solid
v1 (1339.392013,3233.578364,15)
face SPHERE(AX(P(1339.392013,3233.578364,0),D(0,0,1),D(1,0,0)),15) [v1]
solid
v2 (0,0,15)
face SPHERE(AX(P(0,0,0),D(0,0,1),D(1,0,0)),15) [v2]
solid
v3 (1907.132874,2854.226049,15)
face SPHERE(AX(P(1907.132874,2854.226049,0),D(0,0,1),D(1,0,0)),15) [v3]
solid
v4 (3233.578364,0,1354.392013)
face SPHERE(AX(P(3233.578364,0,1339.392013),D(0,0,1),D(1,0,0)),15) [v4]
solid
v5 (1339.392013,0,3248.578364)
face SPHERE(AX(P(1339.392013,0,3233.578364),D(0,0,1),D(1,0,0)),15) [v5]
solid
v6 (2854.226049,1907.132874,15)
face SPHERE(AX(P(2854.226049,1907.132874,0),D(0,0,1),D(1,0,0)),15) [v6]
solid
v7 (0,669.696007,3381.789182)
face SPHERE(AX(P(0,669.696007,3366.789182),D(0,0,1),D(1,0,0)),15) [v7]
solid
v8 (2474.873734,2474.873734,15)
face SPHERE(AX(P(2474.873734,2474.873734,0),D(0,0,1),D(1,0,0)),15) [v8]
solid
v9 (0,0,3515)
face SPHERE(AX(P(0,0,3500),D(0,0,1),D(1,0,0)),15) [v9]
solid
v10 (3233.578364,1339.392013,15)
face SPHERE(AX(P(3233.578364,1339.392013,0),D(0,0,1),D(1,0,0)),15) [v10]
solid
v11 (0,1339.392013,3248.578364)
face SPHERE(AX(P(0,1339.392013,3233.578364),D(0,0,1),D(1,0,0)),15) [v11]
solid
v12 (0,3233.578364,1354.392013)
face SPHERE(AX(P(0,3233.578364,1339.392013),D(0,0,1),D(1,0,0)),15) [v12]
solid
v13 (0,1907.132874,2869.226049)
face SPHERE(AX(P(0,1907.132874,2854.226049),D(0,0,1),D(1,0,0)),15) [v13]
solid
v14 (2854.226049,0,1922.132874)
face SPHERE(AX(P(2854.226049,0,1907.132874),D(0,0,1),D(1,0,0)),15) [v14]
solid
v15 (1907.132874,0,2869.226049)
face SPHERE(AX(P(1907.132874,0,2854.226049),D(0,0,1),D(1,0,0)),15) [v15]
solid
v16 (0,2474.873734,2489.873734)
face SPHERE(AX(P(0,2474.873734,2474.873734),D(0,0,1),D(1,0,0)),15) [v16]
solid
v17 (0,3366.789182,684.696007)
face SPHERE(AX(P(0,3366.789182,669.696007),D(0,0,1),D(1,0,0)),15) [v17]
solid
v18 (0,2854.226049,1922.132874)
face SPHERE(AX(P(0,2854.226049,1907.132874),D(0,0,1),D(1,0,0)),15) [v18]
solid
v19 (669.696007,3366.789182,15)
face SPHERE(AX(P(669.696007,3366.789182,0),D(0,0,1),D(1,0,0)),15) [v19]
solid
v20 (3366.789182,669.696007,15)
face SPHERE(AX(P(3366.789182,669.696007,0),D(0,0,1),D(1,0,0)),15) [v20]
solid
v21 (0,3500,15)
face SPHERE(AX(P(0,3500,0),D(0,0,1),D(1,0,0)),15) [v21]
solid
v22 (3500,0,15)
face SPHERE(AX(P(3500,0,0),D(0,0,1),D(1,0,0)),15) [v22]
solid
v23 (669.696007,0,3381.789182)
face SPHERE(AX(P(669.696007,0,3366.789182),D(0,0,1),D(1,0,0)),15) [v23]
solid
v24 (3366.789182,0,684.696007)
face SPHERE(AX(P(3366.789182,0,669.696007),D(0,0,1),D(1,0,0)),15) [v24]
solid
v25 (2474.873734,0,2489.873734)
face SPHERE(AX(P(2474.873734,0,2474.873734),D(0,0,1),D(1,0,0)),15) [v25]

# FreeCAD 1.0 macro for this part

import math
import FreeCAD as App
import Part
import Sketcher
from FreeCAD import Vector
Q = App.Units.Quantity

doc = App.newDocument("Part")
params = doc.addObject("Spreadsheet::Sheet", "Params")
for row, (alias, value) in enumerate([
    ("sketch1_radius", "15 mm"),
    ("revolution_angle", "360 deg"),
    ("sketch2_radius", "15 mm"),
    ("revolution2_angle", "360 deg"),
    ("sketch3_radius", "15 mm"),
    ("revolution3_angle", "360 deg"),
    ("sketch4_radius", "15 mm"),
    ("revolution4_angle", "360 deg"),
    ("sketch5_radius", "15 mm"),
    ("revolution5_angle", "360 deg"),
    ("sketch6_radius", "15 mm"),
    ("revolution6_angle", "360 deg"),
    ("sketch7_radius", "15 mm"),
    ("revolution7_angle", "360 deg"),
    ("sketch8_radius", "15 mm"),
    ("revolution8_angle", "360 deg"),
    ("sketch9_radius", "15 mm"),
    ("revolution9_angle", "360 deg"),
    ("sketch10_radius", "15 mm"),
    ("revolution10_angle", "360 deg"),
    ("sketch11_radius", "15 mm"),
    ("revolution11_angle", "360 deg"),
    ("sketch12_radius", "15 mm"),
    ("revolution12_angle", "360 deg"),
    ("sketch13_radius", "15 mm"),
    ("revolution13_angle", "360 deg"),
    ("sketch14_radius", "15 mm"),
    ("revolution14_angle", "360 deg"),
    ("sketch15_radius", "15 mm"),
    ("revolution15_angle", "360 deg"),
    ("sketch16_radius", "15 mm"),
    ("revolution16_angle", "360 deg"),
    ("sketch17_radius", "15 mm"),
    ("revolution17_angle", "360 deg"),
    ("sketch18_radius", "15 mm"),
    ("revolution18_angle", "360 deg"),
    ("sketch19_radius", "15 mm"),
    ("revolution19_angle", "360 deg"),
    ("sketch20_radius", "15 mm"),
    ("revolution20_angle", "360 deg"),
    ("sketch21_radius", "15 mm"),
    ("revolution21_angle", "360 deg"),
    ("sketch22_radius", "15 mm"),
    ("revolution22_angle", "360 deg"),
    ("sketch23_radius", "15 mm"),
    ("revolution23_angle", "360 deg"),
    ("sketch24_radius", "15 mm"),
    ("revolution24_angle", "360 deg"),
    ("sketch25_radius", "15 mm"),
    ("revolution25_angle", "360 deg"),
], start=1):
    params.set(f"A{row}", alias)
    params.set(f"B{row}", "=" + value)
    params.setAlias(f"B{row}", alias)

body = doc.addObject("PartDesign::Body", "Body")

# Sketch on XZ plane
sketch1 = doc.addObject("Sketcher::SketchObject", "Sketch")
body.addObject(sketch1)
sketch1.AttachmentSupport = (doc.XZ_Plane, [""])
sketch1.MapMode = "FlatFace"
sketch1.addGeometry([
    Part.ArcOfCircle(Part.Circle(Vector(3500, 0, 0), Vector(0, 0, 1), 15), math.radians(-90), math.radians(90)),
    Part.LineSegment(Vector(3500, 15, 0), Vector(3500, -15, 0)),
], False)
sketch1.addGeometry(Part.LineSegment(Vector(3500, -15, 0), Vector(3500, 15, 0)), True)  # axis
sketch1.addConstraint([
    Sketcher.Constraint("Coincident", 0, 1, 1, 2),
    Sketcher.Constraint("Coincident", 1, 1, 0, 2),
    Sketcher.Constraint("Vertical", 1),
    Sketcher.Constraint("Vertical", 2),
    Sketcher.Constraint("Coincident", 2, 1, 0, 1),
    Sketcher.Constraint("PointOnObject", 0, 3, -1),
    Sketcher.Constraint("Equal", 1, 2),
    Sketcher.Constraint("Radius", 0, Q("15 mm")),
    Sketcher.Constraint("DistanceX", -1, 1, 0, 3, Q("3500 mm")),
    Sketcher.Constraint("DistanceX", -1, 1, 0, 1, Q("3500 mm")),
])
sketch1.setExpression("Constraints[7]", "Params.sketch1_radius")
revolution = doc.addObject("PartDesign::Revolution", "Revolution")
body.addObject(revolution)
revolution.Profile = sketch1
revolution.ReferenceAxis = (sketch1, ["Axis0"])
revolution.setExpression("Angle", "Params.revolution_angle")
body2 = doc.addObject("PartDesign::Body", "Body001")

# Sketch on XZ plane
sketch2 = doc.addObject("Sketcher::SketchObject", "Sketch001")
body2.addObject(sketch2)
sketch2.AttachmentSupport = (doc.getObject("XZ_Plane001"), [""])
sketch2.MapMode = "FlatFace"
sketch2.addGeometry([
    Part.ArcOfCircle(Part.Circle(Vector(0, 0, 0), Vector(0, 0, 1), 15), math.radians(-90), math.radians(90)),
    Part.LineSegment(Vector(0, 15, 0), Vector(0, -15, 0)),
], False)
sketch2.addConstraint([
    Sketcher.Constraint("Coincident", 0, 1, 1, 2),
    Sketcher.Constraint("Coincident", 1, 1, 0, 2),
    Sketcher.Constraint("Vertical", 1),
    Sketcher.Constraint("Coincident", 0, 3, -1, 1),
    Sketcher.Constraint("PointOnObject", 0, 1, -2),
    Sketcher.Constraint("Radius", 0, Q("15 mm")),
])
sketch2.setExpression("Constraints[5]", "Params.sketch2_radius")
revolution2 = doc.addObject("PartDesign::Revolution", "Revolution001")
body2.addObject(revolution2)
revolution2.Profile = sketch2
revolution2.ReferenceAxis = (sketch2, ["V_Axis"])
revolution2.setExpression("Angle", "Params.revolution2_angle")
body3 = doc.addObject("PartDesign::Body", "Body002")

# Sketch on XZ plane
sketch3 = doc.addObject("Sketcher::SketchObject", "Sketch002")
body3.addObject(sketch3)
sketch3.AttachmentSupport = (doc.getObject("XZ_Plane002"), [""])
sketch3.MapMode = "FlatFace"
sketch3.addGeometry([
    Part.ArcOfCircle(Part.Circle(Vector(0, 3500, 0), Vector(0, 0, 1), 15), math.radians(-90), math.radians(90)),
    Part.LineSegment(Vector(0, 3515, 0), Vector(0, 3485, 0)),
], False)
sketch3.addConstraint([
    Sketcher.Constraint("Coincident", 0, 1, 1, 2),
    Sketcher.Constraint("Coincident", 1, 1, 0, 2),
    Sketcher.Constraint("Vertical", 1),
    Sketcher.Constraint("PointOnObject", 0, 3, -2),
    Sketcher.Constraint("PointOnObject", 0, 1, -2),
    Sketcher.Constraint("Radius", 0, Q("15 mm")),
    Sketcher.Constraint("DistanceY", -1, 1, 0, 3, Q("3500 mm")),
])
sketch3.setExpression("Constraints[5]", "Params.sketch3_radius")
revolution3 = doc.addObject("PartDesign::Revolution", "Revolution002")
body3.addObject(revolution3)
revolution3.Profile = sketch3
revolution3.ReferenceAxis = (sketch3, ["V_Axis"])
revolution3.setExpression("Angle", "Params.revolution3_angle")
body4 = doc.addObject("PartDesign::Body", "Body003")

# Sketch on XZ plane
sketch4 = doc.addObject("Sketcher::SketchObject", "Sketch003")
body4.addObject(sketch4)
sketch4.AttachmentSupport = (doc.getObject("XZ_Plane003"), [""])
sketch4.MapMode = "FlatFace"
sketch4.addGeometry([
    Part.ArcOfCircle(Part.Circle(Vector(1339, 3234, 0), Vector(0, 0, 1), 15), math.radians(-90), math.radians(90)),
    Part.LineSegment(Vector(1339, 3249, 0), Vector(1339, 3219, 0)),
], False)
sketch4.addGeometry(Part.LineSegment(Vector(1339, 3219, 0), Vector(1339, 3249, 0)), True)  # axis
sketch4.addConstraint([
    Sketcher.Constraint("Coincident", 0, 1, 1, 2),
    Sketcher.Constraint("Coincident", 1, 1, 0, 2),
    Sketcher.Constraint("Vertical", 1),
    Sketcher.Constraint("Vertical", 2),
    Sketcher.Constraint("Coincident", 2, 1, 0, 1),
    Sketcher.Constraint("Equal", 1, 2),
    Sketcher.Constraint("Radius", 0, Q("15 mm")),
    Sketcher.Constraint("DistanceX", -1, 1, 0, 3, Q("1339.392013 mm")),
    Sketcher.Constraint("DistanceY", -1, 1, 0, 3, Q("3233.578364 mm")),
    Sketcher.Constraint("DistanceX", -1, 1, 0, 1, Q("1339.392013 mm")),
])
sketch4.setExpression("Constraints[6]", "Params.sketch4_radius")
revolution4 = doc.addObject("PartDesign::Revolution", "Revolution003")
body4.addObject(revolution4)
revolution4.Profile = sketch4
revolution4.ReferenceAxis = (sketch4, ["Axis0"])
revolution4.setExpression("Angle", "Params.revolution4_angle")
body5 = doc.addObject("PartDesign::Body", "Body004")

# Sketch on XZ plane
sketch5 = doc.addObject("Sketcher::SketchObject", "Sketch004")
body5.addObject(sketch5)
sketch5.AttachmentSupport = (doc.getObject("XZ_Plane004"), [""])
sketch5.MapMode = "FlatFace"
sketch5.addGeometry([
    Part.ArcOfCircle(Part.Circle(Vector(2475, 2475, 0), Vector(0, 0, 1), 15), math.radians(-90), math.radians(90)),
    Part.LineSegment(Vector(2475, 2490, 0), Vector(2475, 2460, 0)),
], False)
sketch5.addGeometry(Part.LineSegment(Vector(2475, 2460, 0), Vector(2475, 2490, 0)), True)  # axis
sketch5.addConstraint([
    Sketcher.Constraint("Coincident", 0, 1, 1, 2),
    Sketcher.Constraint("Coincident", 1, 1, 0, 2),
    Sketcher.Constraint("Vertical", 1),
    Sketcher.Constraint("Vertical", 2),
    Sketcher.Constraint("Coincident", 2, 1, 0, 1),
    Sketcher.Constraint("Equal", 1, 2),
    Sketcher.Constraint("Radius", 0, Q("15 mm")),
    Sketcher.Constraint("DistanceX", -1, 1, 0, 3, Q("2474.873734 mm")),
    Sketcher.Constraint("DistanceY", -1, 1, 0, 3, Q("2474.873734 mm")),
    Sketcher.Constraint("DistanceX", -1, 1, 0, 1, Q("2474.873734 mm")),
])
sketch5.setExpression("Constraints[6]", "Params.sketch5_radius")
revolution5 = doc.addObject("PartDesign::Revolution", "Revolution004")
body5.addObject(revolution5)
revolution5.Profile = sketch5
revolution5.ReferenceAxis = (sketch5, ["Axis0"])
revolution5.setExpression("Angle", "Params.revolution5_angle")
body6 = doc.addObject("PartDesign::Body", "Body005")

# Sketch on XZ plane
sketch6 = doc.addObject("Sketcher::SketchObject", "Sketch005")
body6.addObject(sketch6)
sketch6.AttachmentSupport = (doc.getObject("XZ_Plane005"), [""])
sketch6.MapMode = "FlatFace"
sketch6.addGeometry([
    Part.ArcOfCircle(Part.Circle(Vector(3234, 1339, 0), Vector(0, 0, 1), 15), math.radians(-90), math.radians(90)),
    Part.LineSegment(Vector(3234, 1354, 0), Vector(3234, 1324, 0)),
], False)
sketch6.addGeometry(Part.LineSegment(Vector(3234, 1324, 0), Vector(3234, 1354, 0)), True)  # axis
sketch6.addConstraint([
    Sketcher.Constraint("Coincident", 0, 1, 1, 2),
    Sketcher.Constraint("Coincident", 1, 1, 0, 2),
    Sketcher.Constraint("Vertical", 1),
    Sketcher.Constraint("Vertical", 2),
    Sketcher.Constraint("Coincident", 2, 1, 0, 1),
    Sketcher.Constraint("Equal", 1, 2),
    Sketcher.Constraint("Radius", 0, Q("15 mm")),
    Sketcher.Constraint("DistanceX", -1, 1, 0, 3, Q("3233.578364 mm")),
    Sketcher.Constraint("DistanceY", -1, 1, 0, 3, Q("1339.392013 mm")),
    Sketcher.Constraint("DistanceX", -1, 1, 0, 1, Q("3233.578364 mm")),
])
sketch6.setExpression("Constraints[6]", "Params.sketch6_radius")
revolution6 = doc.addObject("PartDesign::Revolution", "Revolution005")
body6.addObject(revolution6)
revolution6.Profile = sketch6
revolution6.ReferenceAxis = (sketch6, ["Axis0"])
revolution6.setExpression("Angle", "Params.revolution6_angle")
body7 = doc.addObject("PartDesign::Body", "Body006")

# Sketch on XZ plane
sketch7 = doc.addObject("Sketcher::SketchObject", "Sketch006")
body7.addObject(sketch7)
sketch7.AttachmentSupport = (doc.getObject("XZ_Plane006"), [""])
sketch7.MapMode = "FlatFace"
sketch7.AttachmentOffset = App.Placement(Vector(0, 0, -3500), App.Rotation())
sketch7.addGeometry([
    Part.ArcOfCircle(Part.Circle(Vector(0, 0, 0), Vector(0, 0, 1), 15), math.radians(-90), math.radians(90)),
    Part.LineSegment(Vector(0, 15, 0), Vector(0, -15, 0)),
], False)
sketch7.addConstraint([
    Sketcher.Constraint("Coincident", 0, 1, 1, 2),
    Sketcher.Constraint("Coincident", 1, 1, 0, 2),
    Sketcher.Constraint("Vertical", 1),
    Sketcher.Constraint("Coincident", 0, 3, -1, 1),
    Sketcher.Constraint("PointOnObject", 0, 1, -2),
    Sketcher.Constraint("Radius", 0, Q("15 mm")),
])
sketch7.setExpression("Constraints[5]", "Params.sketch7_radius")
revolution7 = doc.addObject("PartDesign::Revolution", "Revolution006")
body7.addObject(revolution7)
revolution7.Profile = sketch7
revolution7.ReferenceAxis = (sketch7, ["V_Axis"])
revolution7.setExpression("Angle", "Params.revolution7_angle")
body8 = doc.addObject("PartDesign::Body", "Body007")

# Sketch on XZ plane
sketch8 = doc.addObject("Sketcher::SketchObject", "Sketch007")
body8.addObject(sketch8)
sketch8.AttachmentSupport = (doc.getObject("XZ_Plane007"), [""])
sketch8.MapMode = "FlatFace"
sketch8.AttachmentOffset = App.Placement(Vector(0, 0, -3233.578364), App.Rotation())
sketch8.addGeometry([
    Part.ArcOfCircle(Part.Circle(Vector(0, 1339, 0), Vector(0, 0, 1), 15), math.radians(-90), math.radians(90)),
    Part.LineSegment(Vector(0, 1354, 0), Vector(0, 1324, 0)),
], False)
sketch8.addConstraint([
    Sketcher.Constraint("Coincident", 0, 1, 1, 2),
    Sketcher.Constraint("Coincident", 1, 1, 0, 2),
    Sketcher.Constraint("Vertical", 1),
    Sketcher.Constraint("PointOnObject", 0, 3, -2),
    Sketcher.Constraint("PointOnObject", 0, 1, -2),
    Sketcher.Constraint("Radius", 0, Q("15 mm")),
    Sketcher.Constraint("DistanceY", -1, 1, 0, 3, Q("1339.392013 mm")),
])
sketch8.setExpression("Constraints[5]", "Params.sketch8_radius")
revolution8 = doc.addObject("PartDesign::Revolution", "Revolution007")
body8.addObject(revolution8)
revolution8.Profile = sketch8
revolution8.ReferenceAxis = (sketch8, ["V_Axis"])
revolution8.setExpression("Angle", "Params.revolution8_angle")
body9 = doc.addObject("PartDesign::Body", "Body008")

# Sketch on XZ plane
sketch9 = doc.addObject("Sketcher::SketchObject", "Sketch008")
body9.addObject(sketch9)
sketch9.AttachmentSupport = (doc.getObject("XZ_Plane008"), [""])
sketch9.MapMode = "FlatFace"
sketch9.AttachmentOffset = App.Placement(Vector(0, 0, -2474.873734), App.Rotation())
sketch9.addGeometry([
    Part.ArcOfCircle(Part.Circle(Vector(0, 2475, 0), Vector(0, 0, 1), 15), math.radians(-90), math.radians(90)),
    Part.LineSegment(Vector(0, 2490, 0), Vector(0, 2460, 0)),
], False)
sketch9.addConstraint([
    Sketcher.Constraint("Coincident", 0, 1, 1, 2),
    Sketcher.Constraint("Coincident", 1, 1, 0, 2),
    Sketcher.Constraint("Vertical", 1),
    Sketcher.Constraint("PointOnObject", 0, 3, -2),
    Sketcher.Constraint("PointOnObject", 0, 1, -2),
    Sketcher.Constraint("Radius", 0, Q("15 mm")),
    Sketcher.Constraint("DistanceY", -1, 1, 0, 3, Q("2474.873734 mm")),
])
sketch9.setExpression("Constraints[5]", "Params.sketch9_radius")
revolution9 = doc.addObject("PartDesign::Revolution", "Revolution008")
body9.addObject(revolution9)
revolution9.Profile = sketch9
revolution9.ReferenceAxis = (sketch9, ["V_Axis"])
revolution9.setExpression("Angle", "Params.revolution9_angle")
body10 = doc.addObject("PartDesign::Body", "Body009")

# Sketch on XZ plane
sketch10 = doc.addObject("Sketcher::SketchObject", "Sketch009")
body10.addObject(sketch10)
sketch10.AttachmentSupport = (doc.getObject("XZ_Plane009"), [""])
sketch10.MapMode = "FlatFace"
sketch10.AttachmentOffset = App.Placement(Vector(0, 0, -1339.392013), App.Rotation())
sketch10.addGeometry([
    Part.ArcOfCircle(Part.Circle(Vector(0, 3234, 0), Vector(0, 0, 1), 15), math.radians(-90), math.radians(90)),
    Part.LineSegment(Vector(0, 3249, 0), Vector(0, 3219, 0)),
], False)
sketch10.addConstraint([
    Sketcher.Constraint("Coincident", 0, 1, 1, 2),
    Sketcher.Constraint("Coincident", 1, 1, 0, 2),
    Sketcher.Constraint("Vertical", 1),
    Sketcher.Constraint("PointOnObject", 0, 3, -2),
    Sketcher.Constraint("PointOnObject", 0, 1, -2),
    Sketcher.Constraint("Radius", 0, Q("15 mm")),
    Sketcher.Constraint("DistanceY", -1, 1, 0, 3, Q("3233.578364 mm")),
])
sketch10.setExpression("Constraints[5]", "Params.sketch10_radius")
revolution10 = doc.addObject("PartDesign::Revolution", "Revolution009")
body10.addObject(revolution10)
revolution10.Profile = sketch10
revolution10.ReferenceAxis = (sketch10, ["V_Axis"])
revolution10.setExpression("Angle", "Params.revolution10_angle")
body11 = doc.addObject("PartDesign::Body", "Body010")

# Sketch on XZ plane
sketch11 = doc.addObject("Sketcher::SketchObject", "Sketch010")
body11.addObject(sketch11)
sketch11.AttachmentSupport = (doc.getObject("XZ_Plane010"), [""])
sketch11.MapMode = "FlatFace"
sketch11.AttachmentOffset = App.Placement(Vector(0, 0, -3233.578364), App.Rotation())
sketch11.addGeometry([
    Part.ArcOfCircle(Part.Circle(Vector(1339, 0, 0), Vector(0, 0, 1), 15), math.radians(-90), math.radians(90)),
    Part.LineSegment(Vector(1339, 15, 0), Vector(1339, -15, 0)),
], False)
sketch11.addGeometry(Part.LineSegment(Vector(1339, -15, 0), Vector(1339, 15, 0)), True)  # axis
sketch11.addConstraint([
    Sketcher.Constraint("Coincident", 0, 1, 1, 2),
    Sketcher.Constraint("Coincident", 1, 1, 0, 2),
    Sketcher.Constraint("Vertical", 1),
    Sketcher.Constraint("Vertical", 2),
    Sketcher.Constraint("Coincident", 2, 1, 0, 1),
    Sketcher.Constraint("PointOnObject", 0, 3, -1),
    Sketcher.Constraint("Equal", 1, 2),
    Sketcher.Constraint("Radius", 0, Q("15 mm")),
    Sketcher.Constraint("DistanceX", -1, 1, 0, 3, Q("1339.392013 mm")),
    Sketcher.Constraint("DistanceX", -1, 1, 0, 1, Q("1339.392013 mm")),
])
sketch11.setExpression("Constraints[7]", "Params.sketch11_radius")
revolution11 = doc.addObject("PartDesign::Revolution", "Revolution010")
body11.addObject(revolution11)
revolution11.Profile = sketch11
revolution11.ReferenceAxis = (sketch11, ["Axis0"])
revolution11.setExpression("Angle", "Params.revolution11_angle")
body12 = doc.addObject("PartDesign::Body", "Body011")

# Sketch on XZ plane
sketch12 = doc.addObject("Sketcher::SketchObject", "Sketch011")
body12.addObject(sketch12)
sketch12.AttachmentSupport = (doc.getObject("XZ_Plane011"), [""])
sketch12.MapMode = "FlatFace"
sketch12.AttachmentOffset = App.Placement(Vector(0, 0, -2474.873734), App.Rotation())
sketch12.addGeometry([
    Part.ArcOfCircle(Part.Circle(Vector(2475, 0, 0), Vector(0, 0, 1), 15), math.radians(-90), math.radians(90)),
    Part.LineSegment(Vector(2475, 15, 0), Vector(2475, -15, 0)),
], False)
sketch12.addGeometry(Part.LineSegment(Vector(2475, -15, 0), Vector(2475, 15, 0)), True)  # axis
sketch12.addConstraint([
    Sketcher.Constraint("Coincident", 0, 1, 1, 2),
    Sketcher.Constraint("Coincident", 1, 1, 0, 2),
    Sketcher.Constraint("Vertical", 1),
    Sketcher.Constraint("Vertical", 2),
    Sketcher.Constraint("Coincident", 2, 1, 0, 1),
    Sketcher.Constraint("PointOnObject", 0, 3, -1),
    Sketcher.Constraint("Equal", 1, 2),
    Sketcher.Constraint("Radius", 0, Q("15 mm")),
    Sketcher.Constraint("DistanceX", -1, 1, 0, 3, Q("2474.873734 mm")),
    Sketcher.Constraint("DistanceX", -1, 1, 0, 1, Q("2474.873734 mm")),
])
sketch12.setExpression("Constraints[7]", "Params.sketch12_radius")
revolution12 = doc.addObject("PartDesign::Revolution", "Revolution011")
body12.addObject(revolution12)
revolution12.Profile = sketch12
revolution12.ReferenceAxis = (sketch12, ["Axis0"])
revolution12.setExpression("Angle", "Params.revolution12_angle")
body13 = doc.addObject("PartDesign::Body", "Body012")

# Sketch on XZ plane
sketch13 = doc.addObject("Sketcher::SketchObject", "Sketch012")
body13.addObject(sketch13)
sketch13.AttachmentSupport = (doc.getObject("XZ_Plane012"), [""])
sketch13.MapMode = "FlatFace"
sketch13.AttachmentOffset = App.Placement(Vector(0, 0, -1339.392013), App.Rotation())
sketch13.addGeometry([
    Part.ArcOfCircle(Part.Circle(Vector(3234, 0, 0), Vector(0, 0, 1), 15), math.radians(-90), math.radians(90)),
    Part.LineSegment(Vector(3234, 15, 0), Vector(3234, -15, 0)),
], False)
sketch13.addGeometry(Part.LineSegment(Vector(3234, -15, 0), Vector(3234, 15, 0)), True)  # axis
sketch13.addConstraint([
    Sketcher.Constraint("Coincident", 0, 1, 1, 2),
    Sketcher.Constraint("Coincident", 1, 1, 0, 2),
    Sketcher.Constraint("Vertical", 1),
    Sketcher.Constraint("Vertical", 2),
    Sketcher.Constraint("Coincident", 2, 1, 0, 1),
    Sketcher.Constraint("PointOnObject", 0, 3, -1),
    Sketcher.Constraint("Equal", 1, 2),
    Sketcher.Constraint("Radius", 0, Q("15 mm")),
    Sketcher.Constraint("DistanceX", -1, 1, 0, 3, Q("3233.578364 mm")),
    Sketcher.Constraint("DistanceX", -1, 1, 0, 1, Q("3233.578364 mm")),
])
sketch13.setExpression("Constraints[7]", "Params.sketch13_radius")
revolution13 = doc.addObject("PartDesign::Revolution", "Revolution012")
body13.addObject(revolution13)
revolution13.Profile = sketch13
revolution13.ReferenceAxis = (sketch13, ["Axis0"])
revolution13.setExpression("Angle", "Params.revolution13_angle")
body14 = doc.addObject("PartDesign::Body", "Body013")

# Sketch on XZ plane
sketch14 = doc.addObject("Sketcher::SketchObject", "Sketch013")
body14.addObject(sketch14)
sketch14.AttachmentSupport = (doc.getObject("XZ_Plane013"), [""])
sketch14.MapMode = "FlatFace"
sketch14.AttachmentOffset = App.Placement(Vector(0, 0, -669.696007), App.Rotation())
sketch14.addGeometry([
    Part.ArcOfCircle(Part.Circle(Vector(3367, 0, 0), Vector(0, 0, 1), 15), math.radians(-90), math.radians(90)),
    Part.LineSegment(Vector(3367, 15, 0), Vector(3367, -15, 0)),
], False)
sketch14.addGeometry(Part.LineSegment(Vector(3367, -15, 0), Vector(3367, 15, 0)), True)  # axis
sketch14.addConstraint([
    Sketcher.Constraint("Coincident", 0, 1, 1, 2),
    Sketcher.Constraint("Coincident", 1, 1, 0, 2),
    Sketcher.Constraint("Vertical", 1),
    Sketcher.Constraint("Vertical", 2),
    Sketcher.Constraint("Coincident", 2, 1, 0, 1),
    Sketcher.Constraint("PointOnObject", 0, 3, -1),
    Sketcher.Constraint("Equal", 1, 2),
    Sketcher.Constraint("Radius", 0, Q("15 mm")),
    Sketcher.Constraint("DistanceX", -1, 1, 0, 3, Q("3366.789182 mm")),
    Sketcher.Constraint("DistanceX", -1, 1, 0, 1, Q("3366.789182 mm")),
])
sketch14.setExpression("Constraints[7]", "Params.sketch14_radius")
revolution14 = doc.addObject("PartDesign::Revolution", "Revolution013")
body14.addObject(revolution14)
revolution14.Profile = sketch14
revolution14.ReferenceAxis = (sketch14, ["Axis0"])
revolution14.setExpression("Angle", "Params.revolution14_angle")
body15 = doc.addObject("PartDesign::Body", "Body014")

# Sketch on XZ plane
sketch15 = doc.addObject("Sketcher::SketchObject", "Sketch014")
body15.addObject(sketch15)
sketch15.AttachmentSupport = (doc.getObject("XZ_Plane014"), [""])
sketch15.MapMode = "FlatFace"
sketch15.AttachmentOffset = App.Placement(Vector(0, 0, -1907.132874), App.Rotation())
sketch15.addGeometry([
    Part.ArcOfCircle(Part.Circle(Vector(2854, 0, 0), Vector(0, 0, 1), 15), math.radians(-90), math.radians(90)),
    Part.LineSegment(Vector(2854, 15, 0), Vector(2854, -15, 0)),
], False)
sketch15.addGeometry(Part.LineSegment(Vector(2854, -15, 0), Vector(2854, 15, 0)), True)  # axis
sketch15.addConstraint([
    Sketcher.Constraint("Coincident", 0, 1, 1, 2),
    Sketcher.Constraint("Coincident", 1, 1, 0, 2),
    Sketcher.Constraint("Vertical", 1),
    Sketcher.Constraint("Vertical", 2),
    Sketcher.Constraint("Coincident", 2, 1, 0, 1),
    Sketcher.Constraint("PointOnObject", 0, 3, -1),
    Sketcher.Constraint("Equal", 1, 2),
    Sketcher.Constraint("Radius", 0, Q("15 mm")),
    Sketcher.Constraint("DistanceX", -1, 1, 0, 3, Q("2854.226049 mm")),
    Sketcher.Constraint("DistanceX", -1, 1, 0, 1, Q("2854.226049 mm")),
])
sketch15.setExpression("Constraints[7]", "Params.sketch15_radius")
revolution15 = doc.addObject("PartDesign::Revolution", "Revolution014")
body15.addObject(revolution15)
revolution15.Profile = sketch15
revolution15.ReferenceAxis = (sketch15, ["Axis0"])
revolution15.setExpression("Angle", "Params.revolution15_angle")
body16 = doc.addObject("PartDesign::Body", "Body015")

# Sketch on XZ plane
sketch16 = doc.addObject("Sketcher::SketchObject", "Sketch015")
body16.addObject(sketch16)
sketch16.AttachmentSupport = (doc.getObject("XZ_Plane015"), [""])
sketch16.MapMode = "FlatFace"
sketch16.AttachmentOffset = App.Placement(Vector(0, 0, -2854.226049), App.Rotation())
sketch16.addGeometry([
    Part.ArcOfCircle(Part.Circle(Vector(1907, 0, 0), Vector(0, 0, 1), 15), math.radians(-90), math.radians(90)),
    Part.LineSegment(Vector(1907, 15, 0), Vector(1907, -15, 0)),
], False)
sketch16.addGeometry(Part.LineSegment(Vector(1907, -15, 0), Vector(1907, 15, 0)), True)  # axis
sketch16.addConstraint([
    Sketcher.Constraint("Coincident", 0, 1, 1, 2),
    Sketcher.Constraint("Coincident", 1, 1, 0, 2),
    Sketcher.Constraint("Vertical", 1),
    Sketcher.Constraint("Vertical", 2),
    Sketcher.Constraint("Coincident", 2, 1, 0, 1),
    Sketcher.Constraint("PointOnObject", 0, 3, -1),
    Sketcher.Constraint("Equal", 1, 2),
    Sketcher.Constraint("Radius", 0, Q("15 mm")),
    Sketcher.Constraint("DistanceX", -1, 1, 0, 3, Q("1907.132874 mm")),
    Sketcher.Constraint("DistanceX", -1, 1, 0, 1, Q("1907.132874 mm")),
])
sketch16.setExpression("Constraints[7]", "Params.sketch16_radius")
revolution16 = doc.addObject("PartDesign::Revolution", "Revolution015")
body16.addObject(revolution16)
revolution16.Profile = sketch16
revolution16.ReferenceAxis = (sketch16, ["Axis0"])
revolution16.setExpression("Angle", "Params.revolution16_angle")
body17 = doc.addObject("PartDesign::Body", "Body016")

# Sketch on XZ plane
sketch17 = doc.addObject("Sketcher::SketchObject", "Sketch016")
body17.addObject(sketch17)
sketch17.AttachmentSupport = (doc.getObject("XZ_Plane016"), [""])
sketch17.MapMode = "FlatFace"
sketch17.AttachmentOffset = App.Placement(Vector(0, 0, -3366.789182), App.Rotation())
sketch17.addGeometry([
    Part.ArcOfCircle(Part.Circle(Vector(670, 0, 0), Vector(0, 0, 1), 15), math.radians(-90), math.radians(90)),
    Part.LineSegment(Vector(670, 15, 0), Vector(670, -15, 0)),
], False)
sketch17.addGeometry(Part.LineSegment(Vector(670, -15, 0), Vector(670, 15, 0)), True)  # axis
sketch17.addConstraint([
    Sketcher.Constraint("Coincident", 0, 1, 1, 2),
    Sketcher.Constraint("Coincident", 1, 1, 0, 2),
    Sketcher.Constraint("Vertical", 1),
    Sketcher.Constraint("Vertical", 2),
    Sketcher.Constraint("Coincident", 2, 1, 0, 1),
    Sketcher.Constraint("PointOnObject", 0, 3, -1),
    Sketcher.Constraint("Equal", 1, 2),
    Sketcher.Constraint("Radius", 0, Q("15 mm")),
    Sketcher.Constraint("DistanceX", -1, 1, 0, 3, Q("669.696007 mm")),
    Sketcher.Constraint("DistanceX", -1, 1, 0, 1, Q("669.696007 mm")),
])
sketch17.setExpression("Constraints[7]", "Params.sketch17_radius")
revolution17 = doc.addObject("PartDesign::Revolution", "Revolution016")
body17.addObject(revolution17)
revolution17.Profile = sketch17
revolution17.ReferenceAxis = (sketch17, ["Axis0"])
revolution17.setExpression("Angle", "Params.revolution17_angle")
body18 = doc.addObject("PartDesign::Body", "Body017")

# Sketch on XZ plane
sketch18 = doc.addObject("Sketcher::SketchObject", "Sketch017")
body18.addObject(sketch18)
sketch18.AttachmentSupport = (doc.getObject("XZ_Plane017"), [""])
sketch18.MapMode = "FlatFace"
sketch18.AttachmentOffset = App.Placement(Vector(0, 0, -3366.789182), App.Rotation())
sketch18.addGeometry([
    Part.ArcOfCircle(Part.Circle(Vector(0, 670, 0), Vector(0, 0, 1), 15), math.radians(-90), math.radians(90)),
    Part.LineSegment(Vector(0, 685, 0), Vector(0, 655, 0)),
], False)
sketch18.addConstraint([
    Sketcher.Constraint("Coincident", 0, 1, 1, 2),
    Sketcher.Constraint("Coincident", 1, 1, 0, 2),
    Sketcher.Constraint("Vertical", 1),
    Sketcher.Constraint("PointOnObject", 0, 3, -2),
    Sketcher.Constraint("PointOnObject", 0, 1, -2),
    Sketcher.Constraint("Radius", 0, Q("15 mm")),
    Sketcher.Constraint("DistanceY", -1, 1, 0, 3, Q("669.696007 mm")),
])
sketch18.setExpression("Constraints[5]", "Params.sketch18_radius")
revolution18 = doc.addObject("PartDesign::Revolution", "Revolution017")
body18.addObject(revolution18)
revolution18.Profile = sketch18
revolution18.ReferenceAxis = (sketch18, ["V_Axis"])
revolution18.setExpression("Angle", "Params.revolution18_angle")
body19 = doc.addObject("PartDesign::Body", "Body018")

# Sketch on XZ plane
sketch19 = doc.addObject("Sketcher::SketchObject", "Sketch018")
body19.addObject(sketch19)
sketch19.AttachmentSupport = (doc.getObject("XZ_Plane018"), [""])
sketch19.MapMode = "FlatFace"
sketch19.AttachmentOffset = App.Placement(Vector(0, 0, -2854.226049), App.Rotation())
sketch19.addGeometry([
    Part.ArcOfCircle(Part.Circle(Vector(0, 1907, 0), Vector(0, 0, 1), 15), math.radians(-90), math.radians(90)),
    Part.LineSegment(Vector(0, 1922, 0), Vector(0, 1892, 0)),
], False)
sketch19.addConstraint([
    Sketcher.Constraint("Coincident", 0, 1, 1, 2),
    Sketcher.Constraint("Coincident", 1, 1, 0, 2),
    Sketcher.Constraint("Vertical", 1),
    Sketcher.Constraint("PointOnObject", 0, 3, -2),
    Sketcher.Constraint("PointOnObject", 0, 1, -2),
    Sketcher.Constraint("Radius", 0, Q("15 mm")),
    Sketcher.Constraint("DistanceY", -1, 1, 0, 3, Q("1907.132874 mm")),
])
sketch19.setExpression("Constraints[5]", "Params.sketch19_radius")
revolution19 = doc.addObject("PartDesign::Revolution", "Revolution018")
body19.addObject(revolution19)
revolution19.Profile = sketch19
revolution19.ReferenceAxis = (sketch19, ["V_Axis"])
revolution19.setExpression("Angle", "Params.revolution19_angle")
body20 = doc.addObject("PartDesign::Body", "Body019")

# Sketch on XZ plane
sketch20 = doc.addObject("Sketcher::SketchObject", "Sketch019")
body20.addObject(sketch20)
sketch20.AttachmentSupport = (doc.getObject("XZ_Plane019"), [""])
sketch20.MapMode = "FlatFace"
sketch20.AttachmentOffset = App.Placement(Vector(0, 0, -1907.132874), App.Rotation())
sketch20.addGeometry([
    Part.ArcOfCircle(Part.Circle(Vector(0, 2854, 0), Vector(0, 0, 1), 15), math.radians(-90), math.radians(90)),
    Part.LineSegment(Vector(0, 2869, 0), Vector(0, 2839, 0)),
], False)
sketch20.addConstraint([
    Sketcher.Constraint("Coincident", 0, 1, 1, 2),
    Sketcher.Constraint("Coincident", 1, 1, 0, 2),
    Sketcher.Constraint("Vertical", 1),
    Sketcher.Constraint("PointOnObject", 0, 3, -2),
    Sketcher.Constraint("PointOnObject", 0, 1, -2),
    Sketcher.Constraint("Radius", 0, Q("15 mm")),
    Sketcher.Constraint("DistanceY", -1, 1, 0, 3, Q("2854.226049 mm")),
])
sketch20.setExpression("Constraints[5]", "Params.sketch20_radius")
revolution20 = doc.addObject("PartDesign::Revolution", "Revolution019")
body20.addObject(revolution20)
revolution20.Profile = sketch20
revolution20.ReferenceAxis = (sketch20, ["V_Axis"])
revolution20.setExpression("Angle", "Params.revolution20_angle")
body21 = doc.addObject("PartDesign::Body", "Body020")

# Sketch on XZ plane
sketch21 = doc.addObject("Sketcher::SketchObject", "Sketch020")
body21.addObject(sketch21)
sketch21.AttachmentSupport = (doc.getObject("XZ_Plane020"), [""])
sketch21.MapMode = "FlatFace"
sketch21.AttachmentOffset = App.Placement(Vector(0, 0, -669.696007), App.Rotation())
sketch21.addGeometry([
    Part.ArcOfCircle(Part.Circle(Vector(0, 3367, 0), Vector(0, 0, 1), 15), math.radians(-90), math.radians(90)),
    Part.LineSegment(Vector(0, 3382, 0), Vector(0, 3352, 0)),
], False)
sketch21.addConstraint([
    Sketcher.Constraint("Coincident", 0, 1, 1, 2),
    Sketcher.Constraint("Coincident", 1, 1, 0, 2),
    Sketcher.Constraint("Vertical", 1),
    Sketcher.Constraint("PointOnObject", 0, 3, -2),
    Sketcher.Constraint("PointOnObject", 0, 1, -2),
    Sketcher.Constraint("Radius", 0, Q("15 mm")),
    Sketcher.Constraint("DistanceY", -1, 1, 0, 3, Q("3366.789182 mm")),
])
sketch21.setExpression("Constraints[5]", "Params.sketch21_radius")
revolution21 = doc.addObject("PartDesign::Revolution", "Revolution020")
body21.addObject(revolution21)
revolution21.Profile = sketch21
revolution21.ReferenceAxis = (sketch21, ["V_Axis"])
revolution21.setExpression("Angle", "Params.revolution21_angle")
body22 = doc.addObject("PartDesign::Body", "Body021")

# Sketch on XZ plane
sketch22 = doc.addObject("Sketcher::SketchObject", "Sketch021")
body22.addObject(sketch22)
sketch22.AttachmentSupport = (doc.getObject("XZ_Plane021"), [""])
sketch22.MapMode = "FlatFace"
sketch22.addGeometry([
    Part.ArcOfCircle(Part.Circle(Vector(670, 3367, 0), Vector(0, 0, 1), 15), math.radians(-90), math.radians(90)),
    Part.LineSegment(Vector(670, 3382, 0), Vector(670, 3352, 0)),
], False)
sketch22.addGeometry(Part.LineSegment(Vector(670, 3352, 0), Vector(670, 3382, 0)), True)  # axis
sketch22.addConstraint([
    Sketcher.Constraint("Coincident", 0, 1, 1, 2),
    Sketcher.Constraint("Coincident", 1, 1, 0, 2),
    Sketcher.Constraint("Vertical", 1),
    Sketcher.Constraint("Vertical", 2),
    Sketcher.Constraint("Coincident", 2, 1, 0, 1),
    Sketcher.Constraint("Equal", 1, 2),
    Sketcher.Constraint("Radius", 0, Q("15 mm")),
    Sketcher.Constraint("DistanceY", -1, 1, 0, 3, Q("3366.789182 mm")),
    Sketcher.Constraint("DistanceX", -1, 1, 0, 3, Q("669.696007 mm")),
    Sketcher.Constraint("DistanceX", -1, 1, 0, 1, Q("669.696007 mm")),
])
sketch22.setExpression("Constraints[6]", "Params.sketch22_radius")
revolution22 = doc.addObject("PartDesign::Revolution", "Revolution021")
body22.addObject(revolution22)
revolution22.Profile = sketch22
revolution22.ReferenceAxis = (sketch22, ["Axis0"])
revolution22.setExpression("Angle", "Params.revolution22_angle")
body23 = doc.addObject("PartDesign::Body", "Body022")

# Sketch on XZ plane
sketch23 = doc.addObject("Sketcher::SketchObject", "Sketch022")
body23.addObject(sketch23)
sketch23.AttachmentSupport = (doc.getObject("XZ_Plane022"), [""])
sketch23.MapMode = "FlatFace"
sketch23.addGeometry([
    Part.ArcOfCircle(Part.Circle(Vector(1907, 2854, 0), Vector(0, 0, 1), 15), math.radians(-90), math.radians(90)),
    Part.LineSegment(Vector(1907, 2869, 0), Vector(1907, 2839, 0)),
], False)
sketch23.addGeometry(Part.LineSegment(Vector(1907, 2839, 0), Vector(1907, 2869, 0)), True)  # axis
sketch23.addConstraint([
    Sketcher.Constraint("Coincident", 0, 1, 1, 2),
    Sketcher.Constraint("Coincident", 1, 1, 0, 2),
    Sketcher.Constraint("Vertical", 1),
    Sketcher.Constraint("Vertical", 2),
    Sketcher.Constraint("Coincident", 2, 1, 0, 1),
    Sketcher.Constraint("Equal", 1, 2),
    Sketcher.Constraint("Radius", 0, Q("15 mm")),
    Sketcher.Constraint("DistanceY", -1, 1, 0, 3, Q("2854.226049 mm")),
    Sketcher.Constraint("DistanceX", -1, 1, 0, 3, Q("1907.132874 mm")),
    Sketcher.Constraint("DistanceX", -1, 1, 0, 1, Q("1907.132874 mm")),
])
sketch23.setExpression("Constraints[6]", "Params.sketch23_radius")
revolution23 = doc.addObject("PartDesign::Revolution", "Revolution022")
body23.addObject(revolution23)
revolution23.Profile = sketch23
revolution23.ReferenceAxis = (sketch23, ["Axis0"])
revolution23.setExpression("Angle", "Params.revolution23_angle")
body24 = doc.addObject("PartDesign::Body", "Body023")

# Sketch on XZ plane
sketch24 = doc.addObject("Sketcher::SketchObject", "Sketch023")
body24.addObject(sketch24)
sketch24.AttachmentSupport = (doc.getObject("XZ_Plane023"), [""])
sketch24.MapMode = "FlatFace"
sketch24.addGeometry([
    Part.ArcOfCircle(Part.Circle(Vector(2854, 1907, 0), Vector(0, 0, 1), 15), math.radians(-90), math.radians(90)),
    Part.LineSegment(Vector(2854, 1922, 0), Vector(2854, 1892, 0)),
], False)
sketch24.addGeometry(Part.LineSegment(Vector(2854, 1892, 0), Vector(2854, 1922, 0)), True)  # axis
sketch24.addConstraint([
    Sketcher.Constraint("Coincident", 0, 1, 1, 2),
    Sketcher.Constraint("Coincident", 1, 1, 0, 2),
    Sketcher.Constraint("Vertical", 1),
    Sketcher.Constraint("Vertical", 2),
    Sketcher.Constraint("Coincident", 2, 1, 0, 1),
    Sketcher.Constraint("Equal", 1, 2),
    Sketcher.Constraint("Radius", 0, Q("15 mm")),
    Sketcher.Constraint("DistanceX", -1, 1, 0, 3, Q("2854.226049 mm")),
    Sketcher.Constraint("DistanceX", -1, 1, 0, 1, Q("2854.226049 mm")),
    Sketcher.Constraint("DistanceY", -1, 1, 0, 3, Q("1907.132874 mm")),
])
sketch24.setExpression("Constraints[6]", "Params.sketch24_radius")
revolution24 = doc.addObject("PartDesign::Revolution", "Revolution023")
body24.addObject(revolution24)
revolution24.Profile = sketch24
revolution24.ReferenceAxis = (sketch24, ["Axis0"])
revolution24.setExpression("Angle", "Params.revolution24_angle")
body25 = doc.addObject("PartDesign::Body", "Body024")

# Sketch on XZ plane
sketch25 = doc.addObject("Sketcher::SketchObject", "Sketch024")
body25.addObject(sketch25)
sketch25.AttachmentSupport = (doc.getObject("XZ_Plane024"), [""])
sketch25.MapMode = "FlatFace"
sketch25.addGeometry([
    Part.ArcOfCircle(Part.Circle(Vector(3367, 670, 0), Vector(0, 0, 1), 15), math.radians(-90), math.radians(90)),
    Part.LineSegment(Vector(3367, 685, 0), Vector(3367, 655, 0)),
], False)
sketch25.addGeometry(Part.LineSegment(Vector(3367, 655, 0), Vector(3367, 685, 0)), True)  # axis
sketch25.addConstraint([
    Sketcher.Constraint("Coincident", 0, 1, 1, 2),
    Sketcher.Constraint("Coincident", 1, 1, 0, 2),
    Sketcher.Constraint("Vertical", 1),
    Sketcher.Constraint("Vertical", 2),
    Sketcher.Constraint("Coincident", 2, 1, 0, 1),
    Sketcher.Constraint("Equal", 1, 2),
    Sketcher.Constraint("Radius", 0, Q("15 mm")),
    Sketcher.Constraint("DistanceX", -1, 1, 0, 3, Q("3366.789182 mm")),
    Sketcher.Constraint("DistanceX", -1, 1, 0, 1, Q("3366.789182 mm")),
    Sketcher.Constraint("DistanceY", -1, 1, 0, 3, Q("669.696007 mm")),
])
sketch25.setExpression("Constraints[6]", "Params.sketch25_radius")
revolution25 = doc.addObject("PartDesign::Revolution", "Revolution024")
body25.addObject(revolution25)
revolution25.Profile = sketch25
revolution25.ReferenceAxis = (sketch25, ["Axis0"])
revolution25.setExpression("Angle", "Params.revolution25_angle")

doc.recompute()
